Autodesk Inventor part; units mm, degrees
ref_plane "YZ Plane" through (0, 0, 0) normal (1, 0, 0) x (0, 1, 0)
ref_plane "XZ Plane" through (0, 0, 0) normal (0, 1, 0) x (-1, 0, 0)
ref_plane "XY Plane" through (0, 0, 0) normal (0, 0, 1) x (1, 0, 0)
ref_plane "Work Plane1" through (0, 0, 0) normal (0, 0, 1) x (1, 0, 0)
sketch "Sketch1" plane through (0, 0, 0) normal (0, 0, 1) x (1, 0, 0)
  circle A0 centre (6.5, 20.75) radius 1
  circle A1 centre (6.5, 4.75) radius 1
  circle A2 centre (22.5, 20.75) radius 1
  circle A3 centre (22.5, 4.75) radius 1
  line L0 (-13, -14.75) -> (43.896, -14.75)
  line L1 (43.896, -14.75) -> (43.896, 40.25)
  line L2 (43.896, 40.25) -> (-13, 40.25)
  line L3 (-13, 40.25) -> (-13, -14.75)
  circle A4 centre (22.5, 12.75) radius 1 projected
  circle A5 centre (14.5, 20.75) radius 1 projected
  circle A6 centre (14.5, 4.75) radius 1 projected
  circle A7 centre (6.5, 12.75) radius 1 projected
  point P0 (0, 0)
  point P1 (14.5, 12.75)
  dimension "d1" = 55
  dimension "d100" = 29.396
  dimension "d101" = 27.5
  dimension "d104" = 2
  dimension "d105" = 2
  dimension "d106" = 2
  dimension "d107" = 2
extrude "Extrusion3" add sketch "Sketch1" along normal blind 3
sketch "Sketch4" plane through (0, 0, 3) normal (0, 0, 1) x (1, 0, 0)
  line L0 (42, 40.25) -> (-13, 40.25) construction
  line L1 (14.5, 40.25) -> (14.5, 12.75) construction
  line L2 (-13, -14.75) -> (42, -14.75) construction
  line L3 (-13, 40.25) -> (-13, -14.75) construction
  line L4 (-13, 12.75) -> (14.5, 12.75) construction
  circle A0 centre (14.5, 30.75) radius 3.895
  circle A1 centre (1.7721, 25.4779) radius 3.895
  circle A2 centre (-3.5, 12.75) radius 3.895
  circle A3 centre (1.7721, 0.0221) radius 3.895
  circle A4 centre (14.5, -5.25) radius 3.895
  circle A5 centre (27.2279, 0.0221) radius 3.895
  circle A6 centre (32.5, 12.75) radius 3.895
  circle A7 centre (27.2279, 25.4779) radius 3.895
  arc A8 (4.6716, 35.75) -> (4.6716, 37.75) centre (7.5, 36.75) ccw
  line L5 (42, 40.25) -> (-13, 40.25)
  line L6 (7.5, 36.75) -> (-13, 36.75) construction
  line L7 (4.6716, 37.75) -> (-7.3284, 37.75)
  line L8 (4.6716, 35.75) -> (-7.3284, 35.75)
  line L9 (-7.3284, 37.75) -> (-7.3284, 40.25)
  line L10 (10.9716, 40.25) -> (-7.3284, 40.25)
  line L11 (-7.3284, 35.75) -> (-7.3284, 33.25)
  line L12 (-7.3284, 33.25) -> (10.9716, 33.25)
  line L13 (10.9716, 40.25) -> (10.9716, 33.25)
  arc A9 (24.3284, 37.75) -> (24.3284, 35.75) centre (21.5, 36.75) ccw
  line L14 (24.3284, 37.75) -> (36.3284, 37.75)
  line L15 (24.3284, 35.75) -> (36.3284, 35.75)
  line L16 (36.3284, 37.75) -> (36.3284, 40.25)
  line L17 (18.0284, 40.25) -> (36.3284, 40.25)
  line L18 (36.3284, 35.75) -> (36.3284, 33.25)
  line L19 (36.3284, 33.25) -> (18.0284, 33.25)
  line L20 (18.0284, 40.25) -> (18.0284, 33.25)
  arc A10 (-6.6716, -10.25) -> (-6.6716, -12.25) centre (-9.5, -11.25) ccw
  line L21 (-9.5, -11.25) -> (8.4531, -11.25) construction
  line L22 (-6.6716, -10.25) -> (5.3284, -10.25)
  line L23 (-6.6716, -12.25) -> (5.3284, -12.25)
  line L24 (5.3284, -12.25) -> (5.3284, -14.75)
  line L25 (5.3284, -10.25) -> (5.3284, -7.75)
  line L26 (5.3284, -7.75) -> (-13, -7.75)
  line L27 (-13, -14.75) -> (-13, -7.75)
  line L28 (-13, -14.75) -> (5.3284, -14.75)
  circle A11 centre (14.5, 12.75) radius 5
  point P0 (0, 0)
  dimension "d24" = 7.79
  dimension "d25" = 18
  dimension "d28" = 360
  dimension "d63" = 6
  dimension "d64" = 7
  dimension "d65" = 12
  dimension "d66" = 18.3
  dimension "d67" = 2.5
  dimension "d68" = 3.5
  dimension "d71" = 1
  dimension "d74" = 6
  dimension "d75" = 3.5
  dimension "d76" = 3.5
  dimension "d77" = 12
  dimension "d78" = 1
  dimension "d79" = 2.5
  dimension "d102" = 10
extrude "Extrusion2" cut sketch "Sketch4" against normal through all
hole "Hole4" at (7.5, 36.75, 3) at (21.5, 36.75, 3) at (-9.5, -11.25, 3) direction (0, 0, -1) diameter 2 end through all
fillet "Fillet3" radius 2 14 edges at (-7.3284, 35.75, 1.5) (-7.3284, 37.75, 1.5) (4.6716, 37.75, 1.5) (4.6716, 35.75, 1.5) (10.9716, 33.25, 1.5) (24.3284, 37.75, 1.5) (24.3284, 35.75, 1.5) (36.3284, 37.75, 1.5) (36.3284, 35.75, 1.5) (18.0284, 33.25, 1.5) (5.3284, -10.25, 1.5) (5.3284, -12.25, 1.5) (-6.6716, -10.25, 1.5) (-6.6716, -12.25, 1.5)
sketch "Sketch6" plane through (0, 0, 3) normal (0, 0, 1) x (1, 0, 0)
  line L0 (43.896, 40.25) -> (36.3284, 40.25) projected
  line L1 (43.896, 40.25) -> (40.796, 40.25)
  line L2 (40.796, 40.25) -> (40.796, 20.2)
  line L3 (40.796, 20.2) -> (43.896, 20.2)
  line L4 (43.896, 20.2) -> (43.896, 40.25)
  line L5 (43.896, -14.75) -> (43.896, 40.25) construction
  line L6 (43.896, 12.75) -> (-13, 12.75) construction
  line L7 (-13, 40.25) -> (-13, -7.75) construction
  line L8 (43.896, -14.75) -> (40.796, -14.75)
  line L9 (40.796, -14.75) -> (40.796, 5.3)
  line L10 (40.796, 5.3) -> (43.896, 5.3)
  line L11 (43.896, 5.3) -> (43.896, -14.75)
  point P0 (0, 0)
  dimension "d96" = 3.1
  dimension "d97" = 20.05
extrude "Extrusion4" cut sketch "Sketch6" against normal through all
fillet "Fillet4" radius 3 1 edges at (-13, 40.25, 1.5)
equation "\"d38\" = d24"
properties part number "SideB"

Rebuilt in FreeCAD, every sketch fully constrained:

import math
import FreeCAD as App
import Part
import Sketcher


def edges_at(feature, points):
    """Names of the edges that pass closest to the given points."""
    edges = feature.Shape.Edges
    near = lambda p: min(range(len(edges)), key=lambda i: edges[i].distToShape(Part.Vertex(*p))[0])
    return sorted({f"Edge{near(p) + 1}" for p in points})


def add_polygon(sketch, points):
    """Adds a closed chain of lines whose ends are joined by coincident constraints."""
    first, n = sketch.GeometryCount, len(points)
    for a, b in zip(points, points[1:] + points[:1]):
        sketch.addGeometry(Part.LineSegment(App.Vector(*a, 0), App.Vector(*b, 0)), False)
    for i in range(n):
        sketch.addConstraint(Sketcher.Constraint("Coincident", first + i, 2, first + (i + 1) % n, 1))

doc = App.newDocument("Part")
params = doc.addObject("Spreadsheet::Sheet", "Params")
for row, (alias, value) in enumerate([
    ("sketch1_diameter", "2 mm"),
    ("sketch1_height", "55 mm"),
    ("pad1_length", "3 mm"),
    ("sketch2_diameter", "10 mm"),
    ("sketch2_radius", "3 mm"),
    ("sketch2_diameter2", "7.79 mm"),
    ("sketch2_width", "12 mm"),
    ("sketch2_height", "7 mm"),
    ("sketch3_diameter", "2 mm"),
    ("hole_diameter", "2 mm"),
    ("fillet_radius", "2 mm"),
    ("sketch4_width", "3.1 mm"),
    ("sketch4_height", "20.05 mm"),
    ("fillet2_radius", "3 mm"),
], start=1):
    params.set(f"A{row}", alias)
    params.set(f"B{row}", "=" + value)
    params.setAlias(f"B{row}", alias)

body = doc.addObject("PartDesign::Body", "Body")

# Sketch on XY plane
sketch1 = body.newObject("Sketcher::SketchObject", "Sketch")
sketch1.AttachmentSupport = (doc.getObject("XY_Plane"), [""])
sketch1.MapMode = "FlatFace"
add_polygon(sketch1, [(-13, 40.2), (-13, -14.8), (43.9, -14.8), (43.9, 40.2)])  # lines 0-3
sketch1.addGeometry(Part.Circle(App.Vector(6.5, 4.8, 0), App.Vector(0, 0, 1), 1), False)  # 4
sketch1.addGeometry(Part.Circle(App.Vector(14.5, 4.8, 0), App.Vector(0, 0, 1), 1), False)  # 5
sketch1.addGeometry(Part.Circle(App.Vector(22.5, 4.8, 0), App.Vector(0, 0, 1), 1), False)  # 6
sketch1.addGeometry(Part.Circle(App.Vector(6.5, 12.8, 0), App.Vector(0, 0, 1), 1), False)  # 7
sketch1.addGeometry(Part.Circle(App.Vector(6.5, 20.8, 0), App.Vector(0, 0, 1), 1), False)  # 8
sketch1.addGeometry(Part.Circle(App.Vector(14.5, 20.8, 0), App.Vector(0, 0, 1), 1), False)  # 9
sketch1.addGeometry(Part.Circle(App.Vector(22.5, 12.8, 0), App.Vector(0, 0, 1), 1), False)  # 10
sketch1.addGeometry(Part.Circle(App.Vector(22.5, 20.8, 0), App.Vector(0, 0, 1), 1), False)  # 11
sketch1.addConstraint([
    Sketcher.Constraint("Vertical", 0),
    Sketcher.Constraint("Horizontal", 1),
    Sketcher.Constraint("Vertical", 2),
    Sketcher.Constraint("Horizontal", 3),
    Sketcher.Constraint("Equal", 4, 5),
    Sketcher.Constraint("Equal", 5, 6),
    Sketcher.Constraint("Equal", 6, 7),
    Sketcher.Constraint("Equal", 7, 8),
    Sketcher.Constraint("Equal", 8, 9),
    Sketcher.Constraint("Equal", 9, 10),
    Sketcher.Constraint("Equal", 10, 11),
    Sketcher.Constraint("Horizontal", 4, 3, 5, 3),
    Sketcher.Constraint("Horizontal", 5, 3, 6, 3),
    Sketcher.Constraint("Horizontal", 8, 3, 9, 3),
    Sketcher.Constraint("Horizontal", 7, 3, 10, 3),
    Sketcher.Constraint("Horizontal", 9, 3, 11, 3),
    Sketcher.Constraint("Vertical", 4, 3, 7, 3),
    Sketcher.Constraint("Vertical", 7, 3, 8, 3),
    Sketcher.Constraint("Vertical", 5, 3, 9, 3),
    Sketcher.Constraint("Vertical", 6, 3, 10, 3),
    Sketcher.Constraint("Vertical", 10, 3, 11, 3),
    Sketcher.Constraint("Diameter", 4, 2.0),
    Sketcher.Constraint("DistanceY", 0, 2, 0, 1, 55.0),
    Sketcher.Constraint("DistanceX", 0, 2, 5, 3, 27.5),
    Sketcher.Constraint("DistanceY", 0, 2, 7, 3, 27.5),
    Sketcher.Constraint("DistanceX", 0, 2, -1, 1, 13.0),
    Sketcher.Constraint("DistanceX", 4, 3, 5, 3, 8.0),
    Sketcher.Constraint("DistanceX", 5, 3, 6, 3, 8.0),
    Sketcher.Constraint("DistanceY", 4, 3, 7, 3, 8.0),
    Sketcher.Constraint("DistanceY", 7, 3, 8, 3, 8.0),
    Sketcher.Constraint("DistanceX", 5, 3, 1, 2, 29.396),
    Sketcher.Constraint("DistanceY", -1, 1, 4, 3, 4.75),
])
sketch1.setExpression("Constraints[25]", "Params.sketch1_diameter")
sketch1.setExpression("Constraints[26]", "Params.sketch1_height")
pad1 = body.newObject("PartDesign::Pad", "Pad")
pad1.Profile = sketch1
pad1.setExpression("Length", "Params.pad1_length")

# Sketch on XY plane
sketch2 = body.newObject("Sketcher::SketchObject", "Sketch001")
sketch2.AttachmentSupport = (doc.getObject("XY_Plane"), [""])
sketch2.MapMode = "FlatFace"
sketch2.AttachmentOffset = App.Placement(App.Vector(0, 0, 3), App.Rotation())
sketch2.addGeometry([
    Part.Circle(App.Vector(14.5, 30.8, 0), App.Vector(0, 0, 1), 3.9),  # 0
    Part.Circle(App.Vector(1.8, 25.5, 0), App.Vector(0, 0, 1), 3.9),  # 1
    Part.Circle(App.Vector(-3.5, 12.8, 0), App.Vector(0, 0, 1), 3.9),  # 2
    Part.Circle(App.Vector(1.8, 0, 0), App.Vector(0, 0, 1), 3.9),  # 3
    Part.Circle(App.Vector(14.5, -5.2, 0), App.Vector(0, 0, 1), 3.9),  # 4
    Part.Circle(App.Vector(27.2, 0, 0), App.Vector(0, 0, 1), 3.9),  # 5
    Part.Circle(App.Vector(32.5, 12.8, 0), App.Vector(0, 0, 1), 3.9),  # 6
    Part.Circle(App.Vector(27.2, 25.5, 0), App.Vector(0, 0, 1), 3.9),  # 7
    Part.LineSegment(App.Vector(36.3, 40.2, 0), App.Vector(18, 40.2, 0)),  # 8
    Part.LineSegment(App.Vector(18, 40.2, 0), App.Vector(18, 33.2, 0)),  # 9
    Part.LineSegment(App.Vector(18, 33.2, 0), App.Vector(36.3, 33.2, 0)),  # 10
    Part.LineSegment(App.Vector(36.3, 33.2, 0), App.Vector(36.3, 35.8, 0)),  # 11
    Part.LineSegment(App.Vector(36.3, 35.8, 0), App.Vector(24.3, 35.8, 0)),  # 12
    Part.ArcOfCircle(Part.Circle(App.Vector(21.5, 36.8, 0), App.Vector(0, 0, 1), 3), math.radians(19), math.radians(341)),  # 13
    Part.LineSegment(App.Vector(24.3, 37.8, 0), App.Vector(36.3, 37.8, 0)),  # 14
    Part.LineSegment(App.Vector(36.3, 37.8, 0), App.Vector(36.3, 40.2, 0)),  # 15
    Part.ArcOfCircle(Part.Circle(App.Vector(7.5, 36.8, 0), App.Vector(0, 0, 1), 3), math.radians(-161), math.radians(161)),  # 16
    Part.LineSegment(App.Vector(4.7, 35.8, 0), App.Vector(-7.3, 35.8, 0)),  # 17
    Part.LineSegment(App.Vector(-7.3, 35.8, 0), App.Vector(-7.3, 33.2, 0)),  # 18
    Part.LineSegment(App.Vector(-7.3, 33.2, 0), App.Vector(11, 33.2, 0)),  # 19
    Part.LineSegment(App.Vector(11, 33.2, 0), App.Vector(11, 40.2, 0)),  # 20
    Part.LineSegment(App.Vector(11, 40.2, 0), App.Vector(-7.3, 40.2, 0)),  # 21
    Part.LineSegment(App.Vector(-7.3, 40.2, 0), App.Vector(-7.3, 37.8, 0)),  # 22
    Part.LineSegment(App.Vector(-7.3, 37.8, 0), App.Vector(4.7, 37.8, 0)),  # 23
    Part.ArcOfCircle(Part.Circle(App.Vector(-9.5, -11.2, 0), App.Vector(0, 0, 1), 3), math.radians(19), math.radians(341)),  # 24
    Part.LineSegment(App.Vector(-6.7, -10.2, 0), App.Vector(5.3, -10.2, 0)),  # 25
    Part.LineSegment(App.Vector(5.3, -10.2, 0), App.Vector(5.3, -7.8, 0)),  # 26
    Part.LineSegment(App.Vector(5.3, -7.8, 0), App.Vector(-13, -7.8, 0)),  # 27
    Part.LineSegment(App.Vector(-13, -7.8, 0), App.Vector(-13, -14.8, 0)),  # 28
    Part.LineSegment(App.Vector(-13, -14.8, 0), App.Vector(5.3, -14.8, 0)),  # 29
    Part.LineSegment(App.Vector(5.3, -14.8, 0), App.Vector(5.3, -12.2, 0)),  # 30
    Part.LineSegment(App.Vector(5.3, -12.2, 0), App.Vector(-6.7, -12.2, 0)),  # 31
    Part.Circle(App.Vector(14.5, 12.8, 0), App.Vector(0, 0, 1), 5),  # 32
], False)
sketch2.addConstraint([
    Sketcher.Constraint("Coincident", 8, 2, 9, 1),
    Sketcher.Constraint("Coincident", 9, 2, 10, 1),
    Sketcher.Constraint("Coincident", 10, 2, 11, 1),
    Sketcher.Constraint("Coincident", 11, 2, 12, 1),
    Sketcher.Constraint("Coincident", 12, 2, 13, 2),
    Sketcher.Constraint("Coincident", 13, 1, 14, 1),
    Sketcher.Constraint("Coincident", 14, 2, 15, 1),
    Sketcher.Constraint("Coincident", 15, 2, 8, 1),
    Sketcher.Constraint("Coincident", 16, 1, 17, 1),
    Sketcher.Constraint("Coincident", 17, 2, 18, 1),
    Sketcher.Constraint("Coincident", 18, 2, 19, 1),
    Sketcher.Constraint("Coincident", 19, 2, 20, 1),
    Sketcher.Constraint("Coincident", 20, 2, 21, 1),
    Sketcher.Constraint("Coincident", 21, 2, 22, 1),
    Sketcher.Constraint("Coincident", 22, 2, 23, 1),
    Sketcher.Constraint("Coincident", 23, 2, 16, 2),
    Sketcher.Constraint("Coincident", 24, 1, 25, 1),
    Sketcher.Constraint("Coincident", 25, 2, 26, 1),
    Sketcher.Constraint("Coincident", 26, 2, 27, 1),
    Sketcher.Constraint("Coincident", 27, 2, 28, 1),
    Sketcher.Constraint("Coincident", 28, 2, 29, 1),
    Sketcher.Constraint("Coincident", 29, 2, 30, 1),
    Sketcher.Constraint("Coincident", 30, 2, 31, 1),
    Sketcher.Constraint("Coincident", 31, 2, 24, 2),
    Sketcher.Constraint("Horizontal", 8),
    Sketcher.Constraint("Vertical", 9),
    Sketcher.Constraint("Horizontal", 10),
    Sketcher.Constraint("Vertical", 11),
    Sketcher.Constraint("Horizontal", 12),
    Sketcher.Constraint("Horizontal", 14),
    Sketcher.Constraint("Vertical", 15),
    Sketcher.Constraint("Horizontal", 17),
    Sketcher.Constraint("Vertical", 18),
    Sketcher.Constraint("Horizontal", 19),
    Sketcher.Constraint("Vertical", 20),
    Sketcher.Constraint("Horizontal", 21),
    Sketcher.Constraint("Vertical", 22),
    Sketcher.Constraint("Horizontal", 23),
    Sketcher.Constraint("Horizontal", 25),
    Sketcher.Constraint("Vertical", 26),
    Sketcher.Constraint("Horizontal", 27),
    Sketcher.Constraint("Vertical", 28),
    Sketcher.Constraint("Horizontal", 29),
    Sketcher.Constraint("Vertical", 30),
    Sketcher.Constraint("Horizontal", 31),
    Sketcher.Constraint("Equal", 0, 1),
    Sketcher.Constraint("Equal", 1, 2),
    Sketcher.Constraint("Equal", 2, 3),
    Sketcher.Constraint("Equal", 3, 4),
    Sketcher.Constraint("Equal", 4, 5),
    Sketcher.Constraint("Equal", 5, 6),
    Sketcher.Constraint("Equal", 6, 7),
    Sketcher.Constraint("Equal", 13, 16),
    Sketcher.Constraint("Equal", 16, 24),
    Sketcher.Constraint("Horizontal", 3, 3, 5, 3),
    Sketcher.Constraint("Horizontal", 2, 3, 6, 3),
    Sketcher.Constraint("Horizontal", 1, 3, 7, 3),
    Sketcher.Constraint("Horizontal", 13, 3, 16, 3),
    Sketcher.Constraint("Horizontal", 6, 3, 32, 3),
    Sketcher.Constraint("Horizontal", 12, 2, 16, 1),
    Sketcher.Constraint("Horizontal", 10, 2, 18, 2),
    Sketcher.Constraint("Horizontal", 15, 2, 20, 2),
    Sketcher.Constraint("Horizontal", 14, 2, 22, 2),
    Sketcher.Constraint("Vertical", 1, 3, 3, 3),
    Sketcher.Constraint("Vertical", 0, 3, 4, 3),
    Sketcher.Constraint("Vertical", 5, 3, 7, 3),
    Sketcher.Constraint("Vertical", 4, 3, 32, 3),
    Sketcher.Constraint("Vertical", 12, 2, 13, 1),
    Sketcher.Constraint("Vertical", 11, 2, 14, 2),
    Sketcher.Constraint("Vertical", 18, 2, 21, 2),
    Sketcher.Constraint("Vertical", 26, 2, 29, 2),
    Sketcher.Constraint("Vertical", 24, 1, 31, 2),
    Sketcher.Constraint("Equal", 14, 17),
    Sketcher.Constraint("Equal", 10, 19),
    Sketcher.Constraint("Equal", 23, 25),
    Sketcher.Constraint("Equal", 11, 15),
    Sketcher.Constraint("Equal", 22, 26),
    Sketcher.Constraint("Equal", 20, 28),
    Sketcher.Constraint("Equal", 26, 30),
    Sketcher.Constraint("Diameter", 32, 10.0),
    Sketcher.Constraint("Radius", 13, 3.0),
    Sketcher.Constraint("Diameter", 0, 7.79),
    Sketcher.Constraint("DistanceX", 12, 2, 12, 1, 12.0),
    Sketcher.Constraint("DistanceY", 9, 2, 9, 1, 7.0),
    Sketcher.Constraint("DistanceX", 8, 2, 8, 1, 18.3),
    Sketcher.Constraint("DistanceY", 11, 1, 11, 2, 2.5),
    Sketcher.Constraint("DistanceX", 2, 3, 0, 3, 18.0),
    Sketcher.Constraint("DistanceY", 2, 3, 0, 3, 18.0),
    Sketcher.Constraint("DistanceY", 4, 3, 2, 3, 18.0),
    Sketcher.Constraint("DistanceX", 0, 3, 6, 3, 18.0),
    Sketcher.Constraint("DistanceX", 0, 3, 13, 3, 7.0),
    Sketcher.Constraint("DistanceY", 0, 3, 13, 3, 6.0),
    Sketcher.Constraint("DistanceX", 16, 3, 0, 3, 7.0),
    Sketcher.Constraint("DistanceX", 24, 3, 2, 3, 6.0),
    Sketcher.Constraint("DistanceY", 24, 3, 4, 3, 6.0),
    Sketcher.Constraint("DistanceX", 2, 3, -1, 1, 3.5),
    Sketcher.Constraint("DistanceX", 27, 2, 24, 3, 3.5),
    Sketcher.Constraint("DistanceY", -1, 1, 0, 3, 30.75),
    Sketcher.Constraint("DistanceX", -1, 1, 1, 3, 1.772),
    Sketcher.Constraint("DistanceY", -1, 1, 1, 3, 25.478),
    Sketcher.Constraint("DistanceY", -1, 1, 3, 3, 0.022),
    Sketcher.Constraint("DistanceX", -1, 1, 5, 3, 27.228),
])
sketch2.setExpression("Constraints[79]", "Params.sketch2_diameter")
sketch2.setExpression("Constraints[80]", "Params.sketch2_radius")
sketch2.setExpression("Constraints[81]", "Params.sketch2_diameter2")
sketch2.setExpression("Constraints[82]", "Params.sketch2_width")
sketch2.setExpression("Constraints[83]", "Params.sketch2_height")
pocket1 = body.newObject("PartDesign::Pocket", "Pocket")
pocket1.Profile = sketch2
pocket1.Type = "ThroughAll"

# Sketch on XY plane
sketch3 = body.newObject("Sketcher::SketchObject", "Sketch002")
sketch3.AttachmentSupport = (doc.getObject("XY_Plane"), [""])
sketch3.MapMode = "FlatFace"
sketch3.AttachmentOffset = App.Placement(App.Vector(0, 0, 3), App.Rotation())
sketch3.addGeometry([
    Part.Circle(App.Vector(7.5, 36.8, 0), App.Vector(0, 0, 1), 1),
    Part.Circle(App.Vector(21.5, 36.8, 0), App.Vector(0, 0, 1), 1),
    Part.Circle(App.Vector(-9.5, -11.2, 0), App.Vector(0, 0, 1), 1),
], False)
sketch3.addConstraint([
    Sketcher.Constraint("Equal", 0, 1),
    Sketcher.Constraint("Equal", 1, 2),
    Sketcher.Constraint("Horizontal", 0, 3, 1, 3),
    Sketcher.Constraint("Diameter", 0, 2.0),
    Sketcher.Constraint("DistanceX", 0, 3, 1, 3, 14.0),
    Sketcher.Constraint("DistanceX", 2, 3, 0, 3, 17.0),
    Sketcher.Constraint("DistanceY", 2, 3, 0, 3, 48.0),
    Sketcher.Constraint("DistanceX", -1, 1, 0, 3, 7.5),
    Sketcher.Constraint("DistanceY", -1, 1, 0, 3, 36.75),
])
sketch3.setExpression("Constraints[3]", "Params.sketch3_diameter")
doc.recompute()
hole = body.newObject("PartDesign::Hole", "Hole")
hole.Profile = sketch3
hole.ThreadType = "None"
hole.setExpression("Diameter", "Params.hole_diameter")
hole.DepthType = "ThroughAll"
doc.recompute()

fillet = body.newObject("PartDesign::Fillet", "Fillet")
fillet.Base = (hole, edges_at(hole, [
    (-7.328, 35.75, 1.5),
    (-7.328, 37.75, 1.5),
    (4.672, 37.75, 1.5),
    (4.672, 35.75, 1.5),
    (10.972, 33.25, 1.5),
    (24.328, 37.75, 1.5),
    (24.328, 35.75, 1.5),
    (36.328, 37.75, 1.5),
    (36.328, 35.75, 1.5),
    (18.028, 33.25, 1.5),
    (5.328, -10.25, 1.5),
    (5.328, -12.25, 1.5),
    (-6.672, -10.25, 1.5),
    (-6.672, -12.25, 1.5),
]))
fillet.setExpression("Radius", "Params.fillet_radius")

# Sketch on XY plane
sketch4 = body.newObject("Sketcher::SketchObject", "Sketch003")
sketch4.AttachmentSupport = (doc.getObject("XY_Plane"), [""])
sketch4.MapMode = "FlatFace"
sketch4.AttachmentOffset = App.Placement(App.Vector(0, 0, 3), App.Rotation())
add_polygon(sketch4, [(43.9, 20.2), (43.9, 40.2), (40.8, 40.2), (40.8, 20.2)])  # lines 0-3
add_polygon(sketch4, [(40.8, -14.8), (43.9, -14.8), (43.9, 5.3), (40.8, 5.3)])  # lines 4-7
sketch4.addConstraint([
    Sketcher.Constraint("Vertical", 0),
    Sketcher.Constraint("Horizontal", 1),
    Sketcher.Constraint("Vertical", 2),
    Sketcher.Constraint("Horizontal", 3),
    Sketcher.Constraint("Horizontal", 4),
    Sketcher.Constraint("Vertical", 5),
    Sketcher.Constraint("Horizontal", 6),
    Sketcher.Constraint("Vertical", 7),
    Sketcher.Constraint("Vertical", 3, 2, 4, 2),
    Sketcher.Constraint("Vertical", 2, 2, 6, 2),
    Sketcher.Constraint("Equal", 2, 5),
    Sketcher.Constraint("DistanceX", 1, 2, 1, 1, 3.1),
    Sketcher.Constraint("DistanceY", 0, 1, 0, 2, 20.05),
    Sketcher.Constraint("DistanceY", 4, 2, 0, 2, 55.0),
    Sketcher.Constraint("DistanceY", -1, 1, 2, 2, 20.2),
    Sketcher.Constraint("DistanceX", -1, 1, 0, 2, 43.896),
])
sketch4.setExpression("Constraints[19]", "Params.sketch4_width")
sketch4.setExpression("Constraints[20]", "Params.sketch4_height")
pocket2 = body.newObject("PartDesign::Pocket", "Pocket001")
pocket2.Profile = sketch4
pocket2.Type = "ThroughAll"
doc.recompute()

fillet2 = body.newObject("PartDesign::Fillet", "Fillet001")
fillet2.Base = (pocket2, edges_at(pocket2, [(-13, 40.25, 1.5)]))
fillet2.setExpression("Radius", "Params.fillet2_radius")

doc.recompute()
